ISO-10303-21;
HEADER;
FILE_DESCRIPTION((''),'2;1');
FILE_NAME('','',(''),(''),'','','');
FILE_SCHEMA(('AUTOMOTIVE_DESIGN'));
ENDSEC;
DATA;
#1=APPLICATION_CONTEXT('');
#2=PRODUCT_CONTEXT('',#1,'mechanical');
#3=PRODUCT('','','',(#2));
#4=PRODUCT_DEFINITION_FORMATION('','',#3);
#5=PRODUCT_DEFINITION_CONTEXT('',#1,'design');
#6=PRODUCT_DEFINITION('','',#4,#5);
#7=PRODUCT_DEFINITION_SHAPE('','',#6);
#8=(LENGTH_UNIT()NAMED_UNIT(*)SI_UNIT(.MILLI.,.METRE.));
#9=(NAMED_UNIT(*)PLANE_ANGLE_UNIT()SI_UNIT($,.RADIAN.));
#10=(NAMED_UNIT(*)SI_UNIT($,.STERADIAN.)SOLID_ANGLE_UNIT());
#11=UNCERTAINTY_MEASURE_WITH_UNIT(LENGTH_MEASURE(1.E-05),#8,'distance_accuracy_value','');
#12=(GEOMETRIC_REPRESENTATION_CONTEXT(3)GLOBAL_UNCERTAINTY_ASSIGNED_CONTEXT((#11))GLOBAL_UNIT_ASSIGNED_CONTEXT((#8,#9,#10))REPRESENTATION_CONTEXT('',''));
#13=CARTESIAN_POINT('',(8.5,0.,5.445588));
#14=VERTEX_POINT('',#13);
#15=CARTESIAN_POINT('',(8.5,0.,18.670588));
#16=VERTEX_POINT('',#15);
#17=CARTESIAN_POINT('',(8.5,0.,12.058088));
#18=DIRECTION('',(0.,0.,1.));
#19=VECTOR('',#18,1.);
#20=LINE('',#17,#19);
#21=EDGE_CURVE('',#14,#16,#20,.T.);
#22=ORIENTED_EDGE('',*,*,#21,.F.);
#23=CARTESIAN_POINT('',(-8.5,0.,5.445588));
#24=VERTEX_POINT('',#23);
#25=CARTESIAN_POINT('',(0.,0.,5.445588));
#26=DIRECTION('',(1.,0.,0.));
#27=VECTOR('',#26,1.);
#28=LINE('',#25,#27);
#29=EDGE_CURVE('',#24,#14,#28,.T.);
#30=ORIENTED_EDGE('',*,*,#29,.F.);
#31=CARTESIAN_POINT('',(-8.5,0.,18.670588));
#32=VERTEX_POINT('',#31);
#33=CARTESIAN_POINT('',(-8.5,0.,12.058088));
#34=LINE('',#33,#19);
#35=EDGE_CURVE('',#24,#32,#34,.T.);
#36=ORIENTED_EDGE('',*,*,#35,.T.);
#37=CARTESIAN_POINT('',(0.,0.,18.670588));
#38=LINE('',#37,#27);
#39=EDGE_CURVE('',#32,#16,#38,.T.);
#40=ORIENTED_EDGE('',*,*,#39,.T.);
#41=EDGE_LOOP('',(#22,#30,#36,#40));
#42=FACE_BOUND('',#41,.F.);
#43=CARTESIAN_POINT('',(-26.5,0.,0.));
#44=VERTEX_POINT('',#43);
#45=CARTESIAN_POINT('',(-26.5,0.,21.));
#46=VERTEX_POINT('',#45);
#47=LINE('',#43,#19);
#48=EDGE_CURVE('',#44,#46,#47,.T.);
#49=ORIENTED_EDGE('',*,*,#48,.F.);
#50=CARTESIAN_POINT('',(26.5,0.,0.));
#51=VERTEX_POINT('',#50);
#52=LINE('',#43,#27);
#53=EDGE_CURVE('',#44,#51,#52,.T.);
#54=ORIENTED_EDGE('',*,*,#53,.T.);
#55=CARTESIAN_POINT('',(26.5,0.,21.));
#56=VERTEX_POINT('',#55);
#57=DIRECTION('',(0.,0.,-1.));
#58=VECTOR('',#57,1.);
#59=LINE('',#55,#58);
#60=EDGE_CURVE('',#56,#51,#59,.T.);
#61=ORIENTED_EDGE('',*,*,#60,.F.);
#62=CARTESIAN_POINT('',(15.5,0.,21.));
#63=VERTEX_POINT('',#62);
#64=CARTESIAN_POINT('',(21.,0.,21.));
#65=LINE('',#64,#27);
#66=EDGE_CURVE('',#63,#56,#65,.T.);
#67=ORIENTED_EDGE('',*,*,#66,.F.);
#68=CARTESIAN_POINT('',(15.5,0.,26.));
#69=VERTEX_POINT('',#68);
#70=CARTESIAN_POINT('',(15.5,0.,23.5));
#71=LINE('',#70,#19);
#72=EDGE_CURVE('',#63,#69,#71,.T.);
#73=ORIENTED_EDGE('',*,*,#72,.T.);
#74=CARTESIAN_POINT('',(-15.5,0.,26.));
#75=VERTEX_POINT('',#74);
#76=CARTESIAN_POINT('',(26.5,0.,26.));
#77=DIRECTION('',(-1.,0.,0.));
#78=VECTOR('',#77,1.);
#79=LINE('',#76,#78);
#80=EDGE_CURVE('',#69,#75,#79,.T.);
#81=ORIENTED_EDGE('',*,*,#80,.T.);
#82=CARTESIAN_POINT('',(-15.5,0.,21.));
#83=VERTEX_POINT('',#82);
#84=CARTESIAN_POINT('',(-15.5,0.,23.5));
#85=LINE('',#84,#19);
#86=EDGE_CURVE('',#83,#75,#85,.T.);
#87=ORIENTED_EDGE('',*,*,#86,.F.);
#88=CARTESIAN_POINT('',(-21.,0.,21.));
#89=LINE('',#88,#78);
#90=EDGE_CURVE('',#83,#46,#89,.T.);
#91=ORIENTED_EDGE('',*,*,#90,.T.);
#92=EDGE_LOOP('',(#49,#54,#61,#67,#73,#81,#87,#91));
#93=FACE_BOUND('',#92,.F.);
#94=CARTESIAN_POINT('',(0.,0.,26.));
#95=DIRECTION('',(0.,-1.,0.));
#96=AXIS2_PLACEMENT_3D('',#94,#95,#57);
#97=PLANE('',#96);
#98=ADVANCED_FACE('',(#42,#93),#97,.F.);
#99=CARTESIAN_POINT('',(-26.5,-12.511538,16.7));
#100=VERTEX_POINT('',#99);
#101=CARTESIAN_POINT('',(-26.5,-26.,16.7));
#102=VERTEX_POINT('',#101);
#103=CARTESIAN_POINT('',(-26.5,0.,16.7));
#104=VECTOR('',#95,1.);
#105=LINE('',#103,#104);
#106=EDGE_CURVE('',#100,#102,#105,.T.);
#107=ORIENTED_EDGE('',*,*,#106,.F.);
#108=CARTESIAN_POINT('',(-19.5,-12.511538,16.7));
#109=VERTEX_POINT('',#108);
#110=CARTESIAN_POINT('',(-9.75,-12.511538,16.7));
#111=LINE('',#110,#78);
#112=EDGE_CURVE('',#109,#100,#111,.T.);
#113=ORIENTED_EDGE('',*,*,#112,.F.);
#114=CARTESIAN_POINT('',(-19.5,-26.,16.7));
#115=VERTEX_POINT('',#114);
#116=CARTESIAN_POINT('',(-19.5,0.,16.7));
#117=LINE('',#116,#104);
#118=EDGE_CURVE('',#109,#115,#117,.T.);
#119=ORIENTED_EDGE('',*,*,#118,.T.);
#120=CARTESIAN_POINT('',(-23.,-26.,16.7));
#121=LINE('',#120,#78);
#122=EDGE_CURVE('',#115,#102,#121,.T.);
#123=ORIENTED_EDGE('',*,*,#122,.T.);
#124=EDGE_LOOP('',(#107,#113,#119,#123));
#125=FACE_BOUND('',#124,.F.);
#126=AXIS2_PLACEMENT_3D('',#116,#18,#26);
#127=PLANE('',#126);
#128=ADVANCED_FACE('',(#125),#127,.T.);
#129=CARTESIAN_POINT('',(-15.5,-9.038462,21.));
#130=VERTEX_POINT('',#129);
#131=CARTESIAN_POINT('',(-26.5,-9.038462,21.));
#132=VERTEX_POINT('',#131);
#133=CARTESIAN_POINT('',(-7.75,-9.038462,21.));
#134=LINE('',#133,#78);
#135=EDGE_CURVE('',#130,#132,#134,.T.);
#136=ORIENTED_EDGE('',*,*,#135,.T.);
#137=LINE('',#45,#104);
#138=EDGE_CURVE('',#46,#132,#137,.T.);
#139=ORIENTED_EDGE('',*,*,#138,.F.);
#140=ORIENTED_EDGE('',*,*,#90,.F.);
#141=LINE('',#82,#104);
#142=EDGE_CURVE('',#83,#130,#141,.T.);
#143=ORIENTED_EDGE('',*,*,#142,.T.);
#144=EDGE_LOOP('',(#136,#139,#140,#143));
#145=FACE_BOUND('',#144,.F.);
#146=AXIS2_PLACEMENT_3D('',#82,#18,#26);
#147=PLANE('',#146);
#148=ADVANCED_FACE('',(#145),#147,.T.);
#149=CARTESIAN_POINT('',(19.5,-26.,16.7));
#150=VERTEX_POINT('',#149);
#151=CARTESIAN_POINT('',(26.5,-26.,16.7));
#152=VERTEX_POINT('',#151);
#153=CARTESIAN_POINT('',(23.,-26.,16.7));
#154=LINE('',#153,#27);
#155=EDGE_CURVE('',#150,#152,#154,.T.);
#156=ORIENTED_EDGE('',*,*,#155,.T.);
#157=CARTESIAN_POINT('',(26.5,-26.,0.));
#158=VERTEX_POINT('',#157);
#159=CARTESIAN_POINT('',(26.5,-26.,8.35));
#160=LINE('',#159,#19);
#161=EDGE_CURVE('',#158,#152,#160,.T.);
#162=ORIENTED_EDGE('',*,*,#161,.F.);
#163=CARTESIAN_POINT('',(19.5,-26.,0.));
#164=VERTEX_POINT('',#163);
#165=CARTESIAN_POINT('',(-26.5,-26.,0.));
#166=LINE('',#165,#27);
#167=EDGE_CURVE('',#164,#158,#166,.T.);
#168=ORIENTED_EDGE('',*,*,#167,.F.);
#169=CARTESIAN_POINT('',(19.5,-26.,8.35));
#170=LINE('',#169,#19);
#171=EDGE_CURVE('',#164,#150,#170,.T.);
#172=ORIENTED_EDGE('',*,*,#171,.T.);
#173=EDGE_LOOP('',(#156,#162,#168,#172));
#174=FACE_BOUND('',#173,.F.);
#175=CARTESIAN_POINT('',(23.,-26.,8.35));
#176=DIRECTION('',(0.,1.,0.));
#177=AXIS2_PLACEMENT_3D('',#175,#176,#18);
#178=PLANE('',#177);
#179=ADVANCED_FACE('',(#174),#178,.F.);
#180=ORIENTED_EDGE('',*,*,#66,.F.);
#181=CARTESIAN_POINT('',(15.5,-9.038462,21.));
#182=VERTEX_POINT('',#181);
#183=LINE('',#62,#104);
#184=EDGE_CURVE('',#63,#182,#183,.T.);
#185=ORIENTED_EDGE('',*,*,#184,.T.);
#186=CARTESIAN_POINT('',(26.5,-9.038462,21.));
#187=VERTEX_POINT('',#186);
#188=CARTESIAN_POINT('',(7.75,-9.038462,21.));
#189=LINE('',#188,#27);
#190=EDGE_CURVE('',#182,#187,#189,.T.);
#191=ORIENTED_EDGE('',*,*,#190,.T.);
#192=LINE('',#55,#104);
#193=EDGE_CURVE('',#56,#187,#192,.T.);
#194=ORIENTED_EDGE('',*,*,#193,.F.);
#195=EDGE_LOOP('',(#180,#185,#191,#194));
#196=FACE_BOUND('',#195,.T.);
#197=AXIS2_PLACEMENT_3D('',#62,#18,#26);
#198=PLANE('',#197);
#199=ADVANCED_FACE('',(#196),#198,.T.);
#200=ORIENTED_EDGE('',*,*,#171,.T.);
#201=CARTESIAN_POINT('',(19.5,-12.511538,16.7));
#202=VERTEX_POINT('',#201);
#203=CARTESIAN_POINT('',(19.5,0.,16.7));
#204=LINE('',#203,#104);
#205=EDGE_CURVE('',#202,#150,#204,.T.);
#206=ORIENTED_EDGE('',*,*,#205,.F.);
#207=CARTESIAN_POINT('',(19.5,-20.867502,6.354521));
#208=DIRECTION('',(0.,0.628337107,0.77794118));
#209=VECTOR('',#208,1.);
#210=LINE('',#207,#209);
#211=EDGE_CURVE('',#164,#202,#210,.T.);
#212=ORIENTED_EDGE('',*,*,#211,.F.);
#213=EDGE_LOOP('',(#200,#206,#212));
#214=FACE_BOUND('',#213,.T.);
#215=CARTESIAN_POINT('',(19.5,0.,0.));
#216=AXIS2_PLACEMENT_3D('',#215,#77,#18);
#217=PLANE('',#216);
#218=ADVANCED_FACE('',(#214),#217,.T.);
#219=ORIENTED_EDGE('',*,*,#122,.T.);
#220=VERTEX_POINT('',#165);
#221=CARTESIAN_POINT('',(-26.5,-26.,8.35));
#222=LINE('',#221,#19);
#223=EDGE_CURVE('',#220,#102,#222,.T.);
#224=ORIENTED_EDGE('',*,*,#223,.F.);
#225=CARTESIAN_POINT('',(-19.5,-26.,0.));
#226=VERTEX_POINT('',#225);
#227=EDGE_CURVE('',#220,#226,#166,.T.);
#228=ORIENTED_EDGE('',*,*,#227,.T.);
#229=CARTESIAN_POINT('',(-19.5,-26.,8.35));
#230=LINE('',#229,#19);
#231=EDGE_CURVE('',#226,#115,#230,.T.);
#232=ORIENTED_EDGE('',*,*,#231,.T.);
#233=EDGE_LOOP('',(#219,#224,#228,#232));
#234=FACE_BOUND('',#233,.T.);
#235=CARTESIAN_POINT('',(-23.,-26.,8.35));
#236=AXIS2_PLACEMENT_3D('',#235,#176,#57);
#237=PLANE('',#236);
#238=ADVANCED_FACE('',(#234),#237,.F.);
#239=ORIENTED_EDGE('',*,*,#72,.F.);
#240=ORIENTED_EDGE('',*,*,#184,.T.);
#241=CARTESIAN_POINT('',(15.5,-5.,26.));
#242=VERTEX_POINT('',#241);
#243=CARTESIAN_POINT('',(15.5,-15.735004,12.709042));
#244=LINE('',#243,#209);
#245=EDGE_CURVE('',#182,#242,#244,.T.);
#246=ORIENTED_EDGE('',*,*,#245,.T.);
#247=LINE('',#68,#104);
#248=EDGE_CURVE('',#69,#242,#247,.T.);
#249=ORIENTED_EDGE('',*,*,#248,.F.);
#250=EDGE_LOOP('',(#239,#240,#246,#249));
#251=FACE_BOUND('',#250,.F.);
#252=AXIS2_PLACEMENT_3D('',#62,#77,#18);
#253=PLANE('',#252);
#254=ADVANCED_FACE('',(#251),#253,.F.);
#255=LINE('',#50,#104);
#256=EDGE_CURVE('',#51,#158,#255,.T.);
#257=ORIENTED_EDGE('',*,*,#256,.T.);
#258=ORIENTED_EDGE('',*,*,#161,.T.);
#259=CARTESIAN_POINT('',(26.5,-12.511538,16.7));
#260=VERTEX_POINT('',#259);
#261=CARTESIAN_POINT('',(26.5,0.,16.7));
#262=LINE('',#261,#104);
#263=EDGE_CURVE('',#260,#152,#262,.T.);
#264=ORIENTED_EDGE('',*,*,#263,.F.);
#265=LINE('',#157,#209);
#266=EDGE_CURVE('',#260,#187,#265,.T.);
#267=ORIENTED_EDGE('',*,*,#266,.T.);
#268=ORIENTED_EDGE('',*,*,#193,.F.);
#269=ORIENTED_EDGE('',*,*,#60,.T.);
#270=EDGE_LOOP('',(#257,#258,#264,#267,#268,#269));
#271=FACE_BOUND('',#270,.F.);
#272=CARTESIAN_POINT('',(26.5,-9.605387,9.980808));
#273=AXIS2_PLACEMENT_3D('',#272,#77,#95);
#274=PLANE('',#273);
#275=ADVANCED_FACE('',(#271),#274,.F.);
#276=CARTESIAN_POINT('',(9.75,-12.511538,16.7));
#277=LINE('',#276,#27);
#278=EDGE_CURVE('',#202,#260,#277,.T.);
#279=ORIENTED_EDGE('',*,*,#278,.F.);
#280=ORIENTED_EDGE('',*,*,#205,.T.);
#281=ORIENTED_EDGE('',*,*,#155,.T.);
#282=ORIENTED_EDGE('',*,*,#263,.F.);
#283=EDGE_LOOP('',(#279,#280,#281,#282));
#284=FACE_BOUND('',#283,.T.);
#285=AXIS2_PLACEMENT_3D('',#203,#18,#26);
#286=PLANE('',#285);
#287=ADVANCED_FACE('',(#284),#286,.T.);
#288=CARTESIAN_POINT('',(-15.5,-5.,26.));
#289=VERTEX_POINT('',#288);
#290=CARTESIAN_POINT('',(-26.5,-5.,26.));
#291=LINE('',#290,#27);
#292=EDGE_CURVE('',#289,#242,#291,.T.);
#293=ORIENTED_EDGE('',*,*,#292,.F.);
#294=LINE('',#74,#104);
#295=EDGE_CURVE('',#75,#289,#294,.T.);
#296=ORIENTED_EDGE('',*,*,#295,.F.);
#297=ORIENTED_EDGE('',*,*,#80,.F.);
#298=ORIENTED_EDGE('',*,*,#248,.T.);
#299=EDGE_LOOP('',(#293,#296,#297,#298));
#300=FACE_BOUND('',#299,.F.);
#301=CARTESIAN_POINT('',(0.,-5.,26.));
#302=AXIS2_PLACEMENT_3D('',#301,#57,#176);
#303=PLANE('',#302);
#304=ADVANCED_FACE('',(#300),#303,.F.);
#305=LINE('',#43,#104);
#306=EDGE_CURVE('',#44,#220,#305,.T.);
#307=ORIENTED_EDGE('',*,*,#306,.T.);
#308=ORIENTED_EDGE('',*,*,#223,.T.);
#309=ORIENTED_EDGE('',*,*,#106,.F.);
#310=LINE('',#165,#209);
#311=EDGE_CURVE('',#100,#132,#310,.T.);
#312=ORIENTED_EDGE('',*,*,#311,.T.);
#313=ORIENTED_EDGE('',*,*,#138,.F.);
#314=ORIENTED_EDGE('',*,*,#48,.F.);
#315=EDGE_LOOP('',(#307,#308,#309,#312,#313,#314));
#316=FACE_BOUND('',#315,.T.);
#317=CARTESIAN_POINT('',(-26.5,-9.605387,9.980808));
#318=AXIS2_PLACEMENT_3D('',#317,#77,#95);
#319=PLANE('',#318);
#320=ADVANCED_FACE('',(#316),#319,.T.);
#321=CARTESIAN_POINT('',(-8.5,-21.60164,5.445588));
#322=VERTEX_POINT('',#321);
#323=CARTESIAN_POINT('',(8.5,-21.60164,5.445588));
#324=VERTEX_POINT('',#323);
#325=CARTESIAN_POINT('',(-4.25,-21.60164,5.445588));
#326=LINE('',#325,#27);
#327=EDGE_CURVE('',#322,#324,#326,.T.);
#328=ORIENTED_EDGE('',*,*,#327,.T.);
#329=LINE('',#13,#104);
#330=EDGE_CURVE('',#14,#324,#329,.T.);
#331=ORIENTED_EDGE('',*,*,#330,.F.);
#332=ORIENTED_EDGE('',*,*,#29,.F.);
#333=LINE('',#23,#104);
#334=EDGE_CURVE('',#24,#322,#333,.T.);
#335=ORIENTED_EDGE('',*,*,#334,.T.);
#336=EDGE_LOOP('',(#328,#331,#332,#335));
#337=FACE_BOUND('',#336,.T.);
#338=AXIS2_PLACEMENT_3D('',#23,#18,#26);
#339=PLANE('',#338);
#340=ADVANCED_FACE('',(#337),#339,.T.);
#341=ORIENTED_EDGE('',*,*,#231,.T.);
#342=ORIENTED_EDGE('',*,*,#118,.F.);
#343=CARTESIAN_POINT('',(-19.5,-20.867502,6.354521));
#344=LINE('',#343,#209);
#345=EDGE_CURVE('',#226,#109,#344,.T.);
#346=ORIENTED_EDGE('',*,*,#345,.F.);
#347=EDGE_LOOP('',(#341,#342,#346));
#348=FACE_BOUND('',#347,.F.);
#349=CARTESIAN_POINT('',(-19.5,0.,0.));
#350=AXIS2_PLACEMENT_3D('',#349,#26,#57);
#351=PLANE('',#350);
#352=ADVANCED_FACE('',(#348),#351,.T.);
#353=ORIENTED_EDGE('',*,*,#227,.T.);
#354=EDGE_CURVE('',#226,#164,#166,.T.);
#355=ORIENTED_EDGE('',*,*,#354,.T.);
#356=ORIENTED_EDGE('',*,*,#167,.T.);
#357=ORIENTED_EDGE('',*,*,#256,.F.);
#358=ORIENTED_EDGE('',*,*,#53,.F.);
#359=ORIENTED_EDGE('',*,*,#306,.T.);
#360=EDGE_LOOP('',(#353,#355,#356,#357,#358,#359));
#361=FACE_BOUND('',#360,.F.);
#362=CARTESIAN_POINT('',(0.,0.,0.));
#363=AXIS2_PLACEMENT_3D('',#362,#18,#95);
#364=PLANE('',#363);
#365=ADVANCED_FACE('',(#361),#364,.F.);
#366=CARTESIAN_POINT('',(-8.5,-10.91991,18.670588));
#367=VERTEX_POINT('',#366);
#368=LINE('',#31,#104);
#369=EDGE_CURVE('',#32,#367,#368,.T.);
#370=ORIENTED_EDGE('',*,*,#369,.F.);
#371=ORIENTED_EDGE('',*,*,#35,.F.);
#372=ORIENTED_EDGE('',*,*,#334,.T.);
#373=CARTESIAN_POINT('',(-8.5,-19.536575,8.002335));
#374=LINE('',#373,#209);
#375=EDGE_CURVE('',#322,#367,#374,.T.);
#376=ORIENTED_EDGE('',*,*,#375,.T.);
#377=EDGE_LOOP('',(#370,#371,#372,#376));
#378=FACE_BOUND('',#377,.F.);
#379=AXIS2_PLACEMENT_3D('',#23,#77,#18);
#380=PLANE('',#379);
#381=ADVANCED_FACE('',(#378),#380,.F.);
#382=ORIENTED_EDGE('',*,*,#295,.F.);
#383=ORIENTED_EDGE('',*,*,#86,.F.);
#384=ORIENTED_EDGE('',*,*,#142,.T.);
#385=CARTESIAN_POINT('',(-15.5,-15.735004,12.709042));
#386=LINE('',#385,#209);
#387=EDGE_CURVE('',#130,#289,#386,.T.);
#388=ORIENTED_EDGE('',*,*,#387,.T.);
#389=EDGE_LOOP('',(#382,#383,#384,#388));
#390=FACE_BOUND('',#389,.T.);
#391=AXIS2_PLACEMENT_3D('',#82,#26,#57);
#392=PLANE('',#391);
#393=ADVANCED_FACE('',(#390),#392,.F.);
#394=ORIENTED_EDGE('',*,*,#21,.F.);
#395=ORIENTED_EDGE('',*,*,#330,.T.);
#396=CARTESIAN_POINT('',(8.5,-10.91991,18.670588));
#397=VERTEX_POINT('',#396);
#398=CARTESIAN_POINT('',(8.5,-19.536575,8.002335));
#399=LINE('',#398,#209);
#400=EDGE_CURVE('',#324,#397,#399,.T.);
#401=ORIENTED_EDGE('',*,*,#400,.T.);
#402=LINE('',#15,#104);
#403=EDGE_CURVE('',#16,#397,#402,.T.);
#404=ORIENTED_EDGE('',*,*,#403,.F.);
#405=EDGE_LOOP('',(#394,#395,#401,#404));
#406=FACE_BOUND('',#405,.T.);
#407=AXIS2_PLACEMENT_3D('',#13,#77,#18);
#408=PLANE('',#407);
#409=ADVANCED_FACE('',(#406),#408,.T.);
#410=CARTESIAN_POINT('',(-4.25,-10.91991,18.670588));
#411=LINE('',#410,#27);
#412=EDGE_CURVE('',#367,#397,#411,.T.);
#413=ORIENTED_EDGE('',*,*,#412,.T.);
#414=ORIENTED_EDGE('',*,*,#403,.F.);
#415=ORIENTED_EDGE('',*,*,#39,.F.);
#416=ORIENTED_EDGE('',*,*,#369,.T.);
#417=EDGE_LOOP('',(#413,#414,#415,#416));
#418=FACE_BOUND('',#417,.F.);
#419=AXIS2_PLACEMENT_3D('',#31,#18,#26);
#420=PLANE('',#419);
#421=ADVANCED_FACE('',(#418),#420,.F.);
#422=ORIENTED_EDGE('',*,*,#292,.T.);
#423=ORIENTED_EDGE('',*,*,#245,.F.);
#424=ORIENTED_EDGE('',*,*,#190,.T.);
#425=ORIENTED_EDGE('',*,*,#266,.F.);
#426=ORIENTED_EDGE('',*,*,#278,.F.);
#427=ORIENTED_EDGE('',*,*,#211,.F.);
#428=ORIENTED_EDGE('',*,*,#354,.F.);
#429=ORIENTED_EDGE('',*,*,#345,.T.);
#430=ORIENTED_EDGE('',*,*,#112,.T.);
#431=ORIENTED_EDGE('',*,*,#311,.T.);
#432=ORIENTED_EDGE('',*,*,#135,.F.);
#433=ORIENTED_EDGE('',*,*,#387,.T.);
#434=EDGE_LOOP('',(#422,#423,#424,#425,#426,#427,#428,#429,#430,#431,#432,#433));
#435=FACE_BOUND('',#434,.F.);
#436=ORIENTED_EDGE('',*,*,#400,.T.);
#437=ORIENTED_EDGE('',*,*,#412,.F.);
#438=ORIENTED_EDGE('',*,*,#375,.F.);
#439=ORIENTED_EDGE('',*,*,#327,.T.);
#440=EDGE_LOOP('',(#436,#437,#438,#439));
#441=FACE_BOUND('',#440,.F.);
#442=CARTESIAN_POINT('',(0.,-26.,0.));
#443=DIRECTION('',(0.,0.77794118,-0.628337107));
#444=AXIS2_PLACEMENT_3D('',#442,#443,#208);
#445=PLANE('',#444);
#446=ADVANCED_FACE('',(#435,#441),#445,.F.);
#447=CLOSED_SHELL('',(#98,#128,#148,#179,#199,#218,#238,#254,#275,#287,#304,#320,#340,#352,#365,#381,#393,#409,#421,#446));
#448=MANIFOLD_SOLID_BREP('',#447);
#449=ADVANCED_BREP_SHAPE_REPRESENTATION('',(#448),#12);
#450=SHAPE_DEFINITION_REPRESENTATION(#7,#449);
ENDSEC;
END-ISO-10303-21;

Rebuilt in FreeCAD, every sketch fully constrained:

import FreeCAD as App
import Part
import Sketcher
Q = App.Units.Quantity

doc = App.newDocument("Part")
body = doc.addObject("PartDesign::Body", "Body")

sketch1 = doc.addObject("Sketcher::SketchObject", "Sketch")
body.addObject(sketch1)
sketch1.AttachmentSupport = (doc.YZ_Plane, [""])
sketch1.MapMode = "FlatFace"
sketch1.addGeometry([
    Part.LineSegment(App.Vector(0, 26, 0), App.Vector(-5, 26, 0)),
    Part.LineSegment(App.Vector(-5, 26, 0), App.Vector(-26, 0, 0)),
    Part.LineSegment(App.Vector(-26, 0, 0), App.Vector(0, 0, 0)),
    Part.LineSegment(App.Vector(0, 0, 0), App.Vector(0, 26, 0)),
], False)
sketch1.addConstraint([
    Sketcher.Constraint("Coincident", 0, 2, 1, 1),
    Sketcher.Constraint("Coincident", 1, 2, 2, 1),
    Sketcher.Constraint("Coincident", 2, 2, 3, 1),
    Sketcher.Constraint("Coincident", 3, 2, 0, 1),
    Sketcher.Constraint("Horizontal", 0),
    Sketcher.Constraint("Horizontal", 2),
    Sketcher.Constraint("Vertical", 3),
    Sketcher.Constraint("Coincident", 2, 2, -1, 1),
    Sketcher.Constraint("Equal", 2, 3),
    Sketcher.Constraint("DistanceX", 0, 2, 0, 1, Q("5 mm")),
    Sketcher.Constraint("DistanceX", 2, 1, 2, 2, Q("26 mm")),
])
pad1 = doc.addObject("PartDesign::Pad", "Pad")
body.addObject(pad1)
pad1.Profile = sketch1
pad1.Length = 53
pad1.Midplane = True

sketch2 = doc.addObject("Sketcher::SketchObject", "Sketch001")
body.addObject(sketch2)
sketch2.AttachmentSupport = (doc.XZ_Plane, [""])
sketch2.MapMode = "FlatFace"
sketch2.addGeometry([
    Part.LineSegment(App.Vector(26, 21, 0), App.Vector(16, 21, 0)),
    Part.LineSegment(App.Vector(16, 21, 0), App.Vector(16, 26, 0)),
    Part.LineSegment(App.Vector(16, 26, 0), App.Vector(26, 26, 0)),
    Part.LineSegment(App.Vector(26, 26, 0), App.Vector(26, 21, 0)),
], False)
sketch2.addConstraint([
    Sketcher.Constraint("Coincident", 0, 2, 1, 1),
    Sketcher.Constraint("Coincident", 1, 2, 2, 1),
    Sketcher.Constraint("Coincident", 2, 2, 3, 1),
    Sketcher.Constraint("Coincident", 3, 2, 0, 1),
    Sketcher.Constraint("Horizontal", 0),
    Sketcher.Constraint("Vertical", 1),
    Sketcher.Constraint("Horizontal", 2),
    Sketcher.Constraint("Vertical", 3),
    Sketcher.Constraint("DistanceX", 0, 2, 0, 1, Q("11 mm")),
    Sketcher.Constraint("DistanceY", 1, 1, 1, 2, Q("5 mm")),
    Sketcher.Constraint("DistanceY", -1, 1, 0, 2, Q("21 mm")),
    Sketcher.Constraint("DistanceX", -1, 1, 0, 2, Q("15.5 mm")),
])
pocket1 = doc.addObject("PartDesign::Pocket", "Pocket")
body.addObject(pocket1)
pocket1.Profile = sketch2
pocket1.Type = "ThroughAll"
pocket1.Reversed = True
doc.recompute()

mirrored = doc.addObject("PartDesign::Mirrored", "Mirrored")
body.addObject(mirrored)
mirrored.Originals = [pocket1]
mirrored.MirrorPlane = (doc.YZ_Plane, [""])
body.Tip = mirrored

sketch3 = doc.addObject("Sketcher::SketchObject", "Sketch002")
body.addObject(sketch3)
sketch3.AttachmentSupport = (doc.XZ_Plane, [""])
sketch3.MapMode = "FlatFace"
sketch3.addGeometry([
    Part.LineSegment(App.Vector(26, 0, 0), App.Vector(20, 0, 0)),
    Part.LineSegment(App.Vector(20, 0, 0), App.Vector(20, 17, 0)),
    Part.LineSegment(App.Vector(20, 17, 0), App.Vector(26, 17, 0)),
    Part.LineSegment(App.Vector(26, 17, 0), App.Vector(26, 0, 0)),
], False)
sketch3.addConstraint([
    Sketcher.Constraint("Coincident", 0, 2, 1, 1),
    Sketcher.Constraint("Coincident", 1, 2, 2, 1),
    Sketcher.Constraint("Coincident", 2, 2, 3, 1),
    Sketcher.Constraint("Coincident", 3, 2, 0, 1),
    Sketcher.Constraint("Horizontal", 0),
    Sketcher.Constraint("Vertical", 1),
    Sketcher.Constraint("Horizontal", 2),
    Sketcher.Constraint("Vertical", 3),
    Sketcher.Constraint("PointOnObject", 0, 2, -1),
    Sketcher.Constraint("DistanceX", 0, 2, 0, 1, Q("7 mm")),
    Sketcher.Constraint("DistanceY", 1, 1, 1, 2, Q("16.7 mm")),
    Sketcher.Constraint("DistanceX", -1, 1, 0, 2, Q("19.5 mm")),
])
pad2 = doc.addObject("PartDesign::Pad", "Pad001")
body.addObject(pad2)
pad2.Profile = sketch3
pad2.Length = 26
doc.recompute()

mirrored2 = doc.addObject("PartDesign::Mirrored", "Mirrored001")
body.addObject(mirrored2)
mirrored2.Originals = [pad2]
mirrored2.MirrorPlane = (doc.YZ_Plane, [""])
body.Tip = mirrored2

sketch4 = doc.addObject("Sketcher::SketchObject", "Sketch003")
body.addObject(sketch4)
sketch4.AttachmentSupport = (doc.XZ_Plane, [""])
sketch4.MapMode = "FlatFace"
sketch4.addGeometry([
    Part.LineSegment(App.Vector(8, 5, 0), App.Vector(-8, 5, 0)),
    Part.LineSegment(App.Vector(-8, 5, 0), App.Vector(-8, 19, 0)),
    Part.LineSegment(App.Vector(-8, 19, 0), App.Vector(8, 19, 0)),
    Part.LineSegment(App.Vector(8, 19, 0), App.Vector(8, 5, 0)),
], False)
sketch4.addConstraint([
    Sketcher.Constraint("Coincident", 0, 2, 1, 1),
    Sketcher.Constraint("Coincident", 1, 2, 2, 1),
    Sketcher.Constraint("Coincident", 2, 2, 3, 1),
    Sketcher.Constraint("Coincident", 3, 2, 0, 1),
    Sketcher.Constraint("Horizontal", 0),
    Sketcher.Constraint("Vertical", 1),
    Sketcher.Constraint("Horizontal", 2),
    Sketcher.Constraint("Vertical", 3),
    Sketcher.Constraint("DistanceX", 0, 2, 0, 1, Q("17 mm")),
    Sketcher.Constraint("DistanceX", 0, 2, -1, 1, Q("8.5 mm")),
    Sketcher.Constraint("DistanceY", 1, 1, 1, 2, Q("13.225 mm")),
    Sketcher.Constraint("DistanceY", -1, 1, 0, 2, Q("5.445588 mm")),
])
pocket2 = doc.addObject("PartDesign::Pocket", "Pocket001")
body.addObject(pocket2)
pocket2.Profile = sketch4
pocket2.Type = "ThroughAll"
pocket2.Reversed = True

doc.recompute()
